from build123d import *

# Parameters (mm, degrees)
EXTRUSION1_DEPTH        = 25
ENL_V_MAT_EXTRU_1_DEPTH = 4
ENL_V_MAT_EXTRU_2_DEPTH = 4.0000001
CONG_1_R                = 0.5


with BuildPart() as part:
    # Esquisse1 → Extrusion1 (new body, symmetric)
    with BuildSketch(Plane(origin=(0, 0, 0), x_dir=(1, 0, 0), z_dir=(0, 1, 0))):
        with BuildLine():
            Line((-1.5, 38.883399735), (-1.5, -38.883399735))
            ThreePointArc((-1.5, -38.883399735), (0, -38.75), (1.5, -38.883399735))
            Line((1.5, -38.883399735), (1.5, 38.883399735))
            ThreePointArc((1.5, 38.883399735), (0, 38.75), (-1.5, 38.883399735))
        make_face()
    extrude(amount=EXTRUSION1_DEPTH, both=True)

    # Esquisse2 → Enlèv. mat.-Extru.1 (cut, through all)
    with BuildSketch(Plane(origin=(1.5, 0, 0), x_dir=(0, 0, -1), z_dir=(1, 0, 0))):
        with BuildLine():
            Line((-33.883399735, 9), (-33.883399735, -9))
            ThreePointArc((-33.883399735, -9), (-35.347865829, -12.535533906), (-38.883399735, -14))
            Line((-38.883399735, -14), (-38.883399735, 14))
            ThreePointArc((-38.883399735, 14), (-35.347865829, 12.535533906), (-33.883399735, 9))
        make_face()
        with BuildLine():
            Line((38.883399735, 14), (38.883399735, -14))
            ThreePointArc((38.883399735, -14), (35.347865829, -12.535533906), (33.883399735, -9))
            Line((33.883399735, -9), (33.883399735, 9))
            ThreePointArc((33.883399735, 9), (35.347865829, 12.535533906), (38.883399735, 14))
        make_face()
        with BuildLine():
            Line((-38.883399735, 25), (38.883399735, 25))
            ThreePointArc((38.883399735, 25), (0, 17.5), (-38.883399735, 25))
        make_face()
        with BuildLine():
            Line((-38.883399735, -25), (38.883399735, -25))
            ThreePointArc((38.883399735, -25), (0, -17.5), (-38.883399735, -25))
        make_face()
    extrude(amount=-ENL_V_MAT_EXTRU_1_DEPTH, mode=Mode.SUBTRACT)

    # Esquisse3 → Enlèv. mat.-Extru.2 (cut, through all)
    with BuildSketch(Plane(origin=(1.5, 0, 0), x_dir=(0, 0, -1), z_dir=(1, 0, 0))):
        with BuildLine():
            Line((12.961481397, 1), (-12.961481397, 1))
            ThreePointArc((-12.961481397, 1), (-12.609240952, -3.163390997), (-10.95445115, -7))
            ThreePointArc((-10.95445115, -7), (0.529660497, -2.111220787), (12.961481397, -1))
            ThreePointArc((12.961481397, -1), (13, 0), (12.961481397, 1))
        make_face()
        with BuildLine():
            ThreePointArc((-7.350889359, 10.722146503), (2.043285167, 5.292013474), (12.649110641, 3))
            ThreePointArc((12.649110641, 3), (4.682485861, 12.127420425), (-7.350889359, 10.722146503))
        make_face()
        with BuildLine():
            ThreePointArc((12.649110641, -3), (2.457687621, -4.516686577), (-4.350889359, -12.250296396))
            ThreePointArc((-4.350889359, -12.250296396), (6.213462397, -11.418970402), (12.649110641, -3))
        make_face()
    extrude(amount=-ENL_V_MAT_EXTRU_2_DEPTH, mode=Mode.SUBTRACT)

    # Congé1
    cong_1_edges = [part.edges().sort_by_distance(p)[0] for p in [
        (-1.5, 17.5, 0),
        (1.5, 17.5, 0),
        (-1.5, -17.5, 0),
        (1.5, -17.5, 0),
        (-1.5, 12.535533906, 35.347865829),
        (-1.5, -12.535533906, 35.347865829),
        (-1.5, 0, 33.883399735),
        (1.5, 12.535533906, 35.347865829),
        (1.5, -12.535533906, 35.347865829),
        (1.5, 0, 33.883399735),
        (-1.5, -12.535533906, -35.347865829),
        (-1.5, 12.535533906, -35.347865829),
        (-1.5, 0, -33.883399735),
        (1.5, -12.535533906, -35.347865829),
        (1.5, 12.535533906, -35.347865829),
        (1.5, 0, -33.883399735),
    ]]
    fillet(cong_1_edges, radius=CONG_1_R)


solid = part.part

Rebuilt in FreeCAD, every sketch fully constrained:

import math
import FreeCAD as App
import Part
import Sketcher
Q = App.Units.Quantity


def edges_at(feature, points):
    """Names of the edges that pass closest to the given points."""
    edges = feature.Shape.Edges
    near = lambda p: min(range(len(edges)), key=lambda i: edges[i].distToShape(Part.Vertex(*p))[0])
    return sorted({f"Edge{near(p) + 1}" for p in points})

doc = App.newDocument("Part")
params = doc.addObject("Spreadsheet::Sheet", "Params")
for row, (alias, value) in enumerate([
    ("sketch1_radius", "8.5 mm"),
    ("pad1_length", "50 mm"),
    ("sketch2_radius", "5 mm"),
    ("sketch2_width", "18 mm"),
    ("sketch3_radius", "13 mm"),
    ("sketch3_radius2", "40 mm"),
    ("sketch3_radius3", "35 mm"),
    ("sketch3_radius4", "15 mm"),
    ("fillet_radius", "0.5 mm"),
], start=1):
    params.set(f"A{row}", alias)
    params.set(f"B{row}", "=" + value)
    params.setAlias(f"B{row}", alias)

body = doc.addObject("PartDesign::Body", "Body")

# Sketch on XZ plane
sketch1 = doc.addObject("Sketcher::SketchObject", "Sketch")
body.addObject(sketch1)
sketch1.AttachmentSupport = (doc.XZ_Plane, [""])
sketch1.MapMode = "FlatFace"
sketch1.addGeometry([
    Part.LineSegment(App.Vector(-1.5, -38.9, 0), App.Vector(-1.5, 38.9, 0)),
    Part.ArcOfCircle(Part.Circle(App.Vector(0, 47.2, 0), App.Vector(0, 0, 1), 8.5), math.radians(-100), math.radians(-80)),
    Part.LineSegment(App.Vector(1.5, 38.9, 0), App.Vector(1.5, -38.9, 0)),
    Part.ArcOfCircle(Part.Circle(App.Vector(0, -47.2, 0), App.Vector(0, 0, 1), 8.5), math.radians(80), math.radians(100)),
], False)
sketch1.addConstraint([
    Sketcher.Constraint("Coincident", 0, 2, 1, 1),
    Sketcher.Constraint("Coincident", 1, 2, 2, 1),
    Sketcher.Constraint("Coincident", 2, 2, 3, 1),
    Sketcher.Constraint("Coincident", 3, 2, 0, 1),
    Sketcher.Constraint("Vertical", 0),
    Sketcher.Constraint("Vertical", 2),
    Sketcher.Constraint("Equal", 1, 3),
    Sketcher.Constraint("Symmetric", 1, 3, 3, 3, -1, 1),
    Sketcher.Constraint("Symmetric", 0, 2, 1, 2, -2),
    Sketcher.Constraint("Radius", 1, Q("8.5 mm")),
    Sketcher.Constraint("DistanceX", 0, 2, 1, 2, Q("3 mm")),
    Sketcher.Constraint("DistanceY", 3, 3, 1, 3, Q("94.5 mm")),
])
sketch1.setExpression("Constraints[9]", "Params.sketch1_radius")
pad1 = doc.addObject("PartDesign::Pad", "Pad")
body.addObject(pad1)
pad1.Profile = sketch1
pad1.setExpression("Length", "Params.pad1_length")
pad1.Midplane = True

# Sketch on YZ plane
sketch2 = doc.addObject("Sketcher::SketchObject", "Sketch001")
body.addObject(sketch2)
sketch2.AttachmentSupport = (doc.YZ_Plane, [""])
sketch2.MapMode = "FlatFace"
sketch2.AttachmentOffset = App.Placement(App.Vector(0, 0, 1.5), App.Rotation())
sketch2.addGeometry([
    Part.LineSegment(App.Vector(-9, 34, 0), App.Vector(9, 34, 0)),  # 0
    Part.ArcOfCircle(Part.Circle(App.Vector(9, 39, 0), App.Vector(0, 0, 1), 5), math.radians(-90), math.radians(0)),  # 1
    Part.LineSegment(App.Vector(14, 39, 0), App.Vector(-14, 39, 0)),  # 2
    Part.ArcOfCircle(Part.Circle(App.Vector(-9, 39, 0), App.Vector(0, 0, 1), 5), math.radians(180), math.radians(270)),  # 3
    Part.LineSegment(App.Vector(-14, -39, 0), App.Vector(14, -39, 0)),  # 4
    Part.ArcOfCircle(Part.Circle(App.Vector(9, -39, 0), App.Vector(0, 0, 1), 5), math.radians(0), math.radians(90)),  # 5
    Part.LineSegment(App.Vector(9, -34, 0), App.Vector(-9, -34, 0)),  # 6
    Part.ArcOfCircle(Part.Circle(App.Vector(-9, -39, 0), App.Vector(0, 0, 1), 5), math.radians(90), math.radians(180)),  # 7
    Part.LineSegment(App.Vector(25, -39, 0), App.Vector(25, 39, 0)),  # 8
    Part.ArcOfCircle(Part.Circle(App.Vector(122, 0, 0), App.Vector(0, 0, 1), 105), math.radians(158), math.radians(202)),  # 9
    Part.LineSegment(App.Vector(-25, 39, 0), App.Vector(-25, -39, 0)),  # 10
    Part.ArcOfCircle(Part.Circle(App.Vector(-122, 0, 0), App.Vector(0, 0, 1), 105), math.radians(-22), math.radians(22)),  # 11
], False)
sketch2.addConstraint([
    Sketcher.Constraint("Tangent", 0, 2, 1, 1),
    Sketcher.Constraint("Coincident", 1, 2, 2, 1),
    Sketcher.Constraint("Coincident", 2, 2, 3, 1),
    Sketcher.Constraint("Tangent", 3, 2, 0, 1),
    Sketcher.Constraint("Coincident", 4, 2, 5, 1),
    Sketcher.Constraint("Tangent", 5, 2, 6, 1),
    Sketcher.Constraint("Tangent", 6, 2, 7, 1),
    Sketcher.Constraint("Coincident", 7, 2, 4, 1),
    Sketcher.Constraint("Coincident", 8, 1, 9, 2),
    Sketcher.Constraint("Coincident", 9, 1, 8, 2),
    Sketcher.Constraint("Coincident", 10, 1, 11, 2),
    Sketcher.Constraint("Coincident", 11, 1, 10, 2),
    Sketcher.Constraint("Horizontal", 0),
    Sketcher.Constraint("Horizontal", 2),
    Sketcher.Constraint("Horizontal", 4),
    Sketcher.Constraint("Horizontal", 6),
    Sketcher.Constraint("Vertical", 8),
    Sketcher.Constraint("Vertical", 10),
    Sketcher.Constraint("Equal", 1, 3),
    Sketcher.Constraint("Equal", 3, 5),
    Sketcher.Constraint("Equal", 5, 7),
    Sketcher.Constraint("Equal", 9, 11),
    Sketcher.Constraint("Symmetric", 3, 3, 5, 3, -1, 1),
    Sketcher.Constraint("Symmetric", 9, 3, 11, 3, -1, 1),
    Sketcher.Constraint("Symmetric", 1, 2, 7, 2, -1, 1),
    Sketcher.Constraint("Symmetric", 9, 1, 10, 1, -2),
    Sketcher.Constraint("Horizontal", 3, 3, 1, 2),
    Sketcher.Constraint("Horizontal", 7, 2, 8, 1),
    Sketcher.Constraint("Vertical", 1, 3, 5, 3),
    Sketcher.Constraint("Radius", 1, Q("5 mm")),
    Sketcher.Constraint("DistanceX", 0, 1, 0, 2, Q("18 mm")),
    Sketcher.Constraint("DistanceX", -1, 1, 8, 1, Q("25 mm")),
    Sketcher.Constraint("DistanceY", 8, 1, 8, 2, Q("77.766799 mm")),
    Sketcher.Constraint("Radius", 9, Q("104.544585 mm")),
])
sketch2.setExpression("Constraints[29]", "Params.sketch2_radius")
sketch2.setExpression("Constraints[30]", "Params.sketch2_width")
pocket1 = doc.addObject("PartDesign::Pocket", "Pocket")
body.addObject(pocket1)
pocket1.Profile = sketch2
pocket1.Type = "ThroughAll"

# Sketch on YZ plane
sketch3 = doc.addObject("Sketcher::SketchObject", "Sketch002")
body.addObject(sketch3)
sketch3.AttachmentSupport = (doc.YZ_Plane, [""])
sketch3.MapMode = "FlatFace"
sketch3.AttachmentOffset = App.Placement(App.Vector(0, 0, 1.5), App.Rotation())
sketch3.addGeometry([
    Part.LineSegment(App.Vector(1, -13, 0), App.Vector(1, 13, 0)),  # 0
    Part.ArcOfCircle(Part.Circle(App.Vector(0, 0, 0), App.Vector(0, 0, 1), 13), math.radians(86), math.radians(123)),  # 1
    Part.ArcOfCircle(Part.Circle(App.Vector(-40.9, -10.3, 0), App.Vector(0, 0, 1), 40), math.radians(-4), math.radians(32)),  # 2
    Part.ArcOfCircle(Part.Circle(App.Vector(0, 0, 0), App.Vector(0, 0, 1), 13), math.radians(-94.41), math.radians(-85.59)),  # 3
    Part.ArcOfCircle(Part.Circle(App.Vector(37.9, -14.6, 0), App.Vector(0, 0, 1), 35), math.radians(141), math.radians(177)),  # 4
    Part.ArcOfCircle(Part.Circle(App.Vector(0, 0, 0), App.Vector(0, 0, 1), 13), math.radians(-77), math.radians(34)),  # 5
    Part.ArcOfCircle(Part.Circle(App.Vector(-17.7, -9.6, 0), App.Vector(0, 0, 1), 15), math.radians(-12), math.radians(69)),  # 6
    Part.ArcOfCircle(Part.Circle(App.Vector(0, 0, 0), App.Vector(0, 0, 1), 13), math.radians(160), math.radians(257)),  # 7
], False)
sketch3.addConstraint([
    Sketcher.Constraint("Coincident", 0, 2, 1, 1),
    Sketcher.Constraint("Coincident", 1, 2, 2, 2),
    Sketcher.Constraint("Coincident", 2, 1, 3, 1),
    Sketcher.Constraint("Coincident", 3, 2, 0, 1),
    Sketcher.Constraint("Coincident", 4, 1, 5, 2),
    Sketcher.Constraint("Coincident", 5, 1, 4, 2),
    Sketcher.Constraint("Coincident", 6, 1, 7, 2),
    Sketcher.Constraint("Coincident", 7, 1, 6, 2),
    Sketcher.Constraint("Vertical", 0),
    Sketcher.Constraint("Coincident", 1, 3, -1, 1),
    Sketcher.Constraint("Coincident", 3, 3, -1, 1),
    Sketcher.Constraint("Coincident", 5, 3, -1, 1),
    Sketcher.Constraint("Coincident", 7, 3, -1, 1),
    Sketcher.Constraint("Equal", 1, 3),
    Sketcher.Constraint("Equal", 3, 5),
    Sketcher.Constraint("Equal", 5, 7),
    Sketcher.Constraint("Horizontal", 2, 1, 3, 2),
    Sketcher.Constraint("Horizontal", 5, 1, 6, 1),
    Sketcher.Constraint("Radius", 1, Q("13 mm")),
    Sketcher.Constraint("Radius", 2, Q("40 mm")),
    Sketcher.Constraint("Radius", 4, Q("35 mm")),
    Sketcher.Constraint("Radius", 6, Q("15 mm")),
    Sketcher.Constraint("DistanceX", -1, 1, 0, 2, Q("1 mm")),
    Sketcher.Constraint("DistanceX", 1, 2, -1, 1, Q("7 mm")),
    Sketcher.Constraint("DistanceX", -1, 1, 5, 1, Q("3 mm")),
    Sketcher.Constraint("DistanceX", -1, 1, 4, 3, Q("37.942761 mm")),
    Sketcher.Constraint("DistanceX", 6, 3, -1, 1, Q("17.692422 mm")),
])
sketch3.setExpression("Constraints[18]", "Params.sketch3_radius")
sketch3.setExpression("Constraints[19]", "Params.sketch3_radius2")
sketch3.setExpression("Constraints[20]", "Params.sketch3_radius3")
sketch3.setExpression("Constraints[21]", "Params.sketch3_radius4")
pocket2 = doc.addObject("PartDesign::Pocket", "Pocket001")
body.addObject(pocket2)
pocket2.Profile = sketch3
pocket2.Type = "ThroughAll"
doc.recompute()

fillet = doc.addObject("PartDesign::Fillet", "Fillet")
body.addObject(fillet)
fillet.Base = (pocket2, edges_at(pocket2, [
    (-1.5, 17.5, 0),
    (1.5, 17.5, 0),
    (-1.5, -17.5, 0),
    (1.5, -17.5, 0),
    (-1.5, 12.536, 35.348),
    (-1.5, -12.536, 35.348),
    (-1.5, 0, 33.883),
    (1.5, 12.536, 35.348),
    (1.5, -12.536, 35.348),
    (1.5, 0, 33.883),
    (-1.5, -12.536, -35.348),
    (-1.5, 12.536, -35.348),
    (-1.5, 0, -33.883),
    (1.5, -12.536, -35.348),
    (1.5, 12.536, -35.348),
    (1.5, 0, -33.883),
]))
fillet.setExpression("Radius", "Params.fillet_radius")

doc.recompute()
